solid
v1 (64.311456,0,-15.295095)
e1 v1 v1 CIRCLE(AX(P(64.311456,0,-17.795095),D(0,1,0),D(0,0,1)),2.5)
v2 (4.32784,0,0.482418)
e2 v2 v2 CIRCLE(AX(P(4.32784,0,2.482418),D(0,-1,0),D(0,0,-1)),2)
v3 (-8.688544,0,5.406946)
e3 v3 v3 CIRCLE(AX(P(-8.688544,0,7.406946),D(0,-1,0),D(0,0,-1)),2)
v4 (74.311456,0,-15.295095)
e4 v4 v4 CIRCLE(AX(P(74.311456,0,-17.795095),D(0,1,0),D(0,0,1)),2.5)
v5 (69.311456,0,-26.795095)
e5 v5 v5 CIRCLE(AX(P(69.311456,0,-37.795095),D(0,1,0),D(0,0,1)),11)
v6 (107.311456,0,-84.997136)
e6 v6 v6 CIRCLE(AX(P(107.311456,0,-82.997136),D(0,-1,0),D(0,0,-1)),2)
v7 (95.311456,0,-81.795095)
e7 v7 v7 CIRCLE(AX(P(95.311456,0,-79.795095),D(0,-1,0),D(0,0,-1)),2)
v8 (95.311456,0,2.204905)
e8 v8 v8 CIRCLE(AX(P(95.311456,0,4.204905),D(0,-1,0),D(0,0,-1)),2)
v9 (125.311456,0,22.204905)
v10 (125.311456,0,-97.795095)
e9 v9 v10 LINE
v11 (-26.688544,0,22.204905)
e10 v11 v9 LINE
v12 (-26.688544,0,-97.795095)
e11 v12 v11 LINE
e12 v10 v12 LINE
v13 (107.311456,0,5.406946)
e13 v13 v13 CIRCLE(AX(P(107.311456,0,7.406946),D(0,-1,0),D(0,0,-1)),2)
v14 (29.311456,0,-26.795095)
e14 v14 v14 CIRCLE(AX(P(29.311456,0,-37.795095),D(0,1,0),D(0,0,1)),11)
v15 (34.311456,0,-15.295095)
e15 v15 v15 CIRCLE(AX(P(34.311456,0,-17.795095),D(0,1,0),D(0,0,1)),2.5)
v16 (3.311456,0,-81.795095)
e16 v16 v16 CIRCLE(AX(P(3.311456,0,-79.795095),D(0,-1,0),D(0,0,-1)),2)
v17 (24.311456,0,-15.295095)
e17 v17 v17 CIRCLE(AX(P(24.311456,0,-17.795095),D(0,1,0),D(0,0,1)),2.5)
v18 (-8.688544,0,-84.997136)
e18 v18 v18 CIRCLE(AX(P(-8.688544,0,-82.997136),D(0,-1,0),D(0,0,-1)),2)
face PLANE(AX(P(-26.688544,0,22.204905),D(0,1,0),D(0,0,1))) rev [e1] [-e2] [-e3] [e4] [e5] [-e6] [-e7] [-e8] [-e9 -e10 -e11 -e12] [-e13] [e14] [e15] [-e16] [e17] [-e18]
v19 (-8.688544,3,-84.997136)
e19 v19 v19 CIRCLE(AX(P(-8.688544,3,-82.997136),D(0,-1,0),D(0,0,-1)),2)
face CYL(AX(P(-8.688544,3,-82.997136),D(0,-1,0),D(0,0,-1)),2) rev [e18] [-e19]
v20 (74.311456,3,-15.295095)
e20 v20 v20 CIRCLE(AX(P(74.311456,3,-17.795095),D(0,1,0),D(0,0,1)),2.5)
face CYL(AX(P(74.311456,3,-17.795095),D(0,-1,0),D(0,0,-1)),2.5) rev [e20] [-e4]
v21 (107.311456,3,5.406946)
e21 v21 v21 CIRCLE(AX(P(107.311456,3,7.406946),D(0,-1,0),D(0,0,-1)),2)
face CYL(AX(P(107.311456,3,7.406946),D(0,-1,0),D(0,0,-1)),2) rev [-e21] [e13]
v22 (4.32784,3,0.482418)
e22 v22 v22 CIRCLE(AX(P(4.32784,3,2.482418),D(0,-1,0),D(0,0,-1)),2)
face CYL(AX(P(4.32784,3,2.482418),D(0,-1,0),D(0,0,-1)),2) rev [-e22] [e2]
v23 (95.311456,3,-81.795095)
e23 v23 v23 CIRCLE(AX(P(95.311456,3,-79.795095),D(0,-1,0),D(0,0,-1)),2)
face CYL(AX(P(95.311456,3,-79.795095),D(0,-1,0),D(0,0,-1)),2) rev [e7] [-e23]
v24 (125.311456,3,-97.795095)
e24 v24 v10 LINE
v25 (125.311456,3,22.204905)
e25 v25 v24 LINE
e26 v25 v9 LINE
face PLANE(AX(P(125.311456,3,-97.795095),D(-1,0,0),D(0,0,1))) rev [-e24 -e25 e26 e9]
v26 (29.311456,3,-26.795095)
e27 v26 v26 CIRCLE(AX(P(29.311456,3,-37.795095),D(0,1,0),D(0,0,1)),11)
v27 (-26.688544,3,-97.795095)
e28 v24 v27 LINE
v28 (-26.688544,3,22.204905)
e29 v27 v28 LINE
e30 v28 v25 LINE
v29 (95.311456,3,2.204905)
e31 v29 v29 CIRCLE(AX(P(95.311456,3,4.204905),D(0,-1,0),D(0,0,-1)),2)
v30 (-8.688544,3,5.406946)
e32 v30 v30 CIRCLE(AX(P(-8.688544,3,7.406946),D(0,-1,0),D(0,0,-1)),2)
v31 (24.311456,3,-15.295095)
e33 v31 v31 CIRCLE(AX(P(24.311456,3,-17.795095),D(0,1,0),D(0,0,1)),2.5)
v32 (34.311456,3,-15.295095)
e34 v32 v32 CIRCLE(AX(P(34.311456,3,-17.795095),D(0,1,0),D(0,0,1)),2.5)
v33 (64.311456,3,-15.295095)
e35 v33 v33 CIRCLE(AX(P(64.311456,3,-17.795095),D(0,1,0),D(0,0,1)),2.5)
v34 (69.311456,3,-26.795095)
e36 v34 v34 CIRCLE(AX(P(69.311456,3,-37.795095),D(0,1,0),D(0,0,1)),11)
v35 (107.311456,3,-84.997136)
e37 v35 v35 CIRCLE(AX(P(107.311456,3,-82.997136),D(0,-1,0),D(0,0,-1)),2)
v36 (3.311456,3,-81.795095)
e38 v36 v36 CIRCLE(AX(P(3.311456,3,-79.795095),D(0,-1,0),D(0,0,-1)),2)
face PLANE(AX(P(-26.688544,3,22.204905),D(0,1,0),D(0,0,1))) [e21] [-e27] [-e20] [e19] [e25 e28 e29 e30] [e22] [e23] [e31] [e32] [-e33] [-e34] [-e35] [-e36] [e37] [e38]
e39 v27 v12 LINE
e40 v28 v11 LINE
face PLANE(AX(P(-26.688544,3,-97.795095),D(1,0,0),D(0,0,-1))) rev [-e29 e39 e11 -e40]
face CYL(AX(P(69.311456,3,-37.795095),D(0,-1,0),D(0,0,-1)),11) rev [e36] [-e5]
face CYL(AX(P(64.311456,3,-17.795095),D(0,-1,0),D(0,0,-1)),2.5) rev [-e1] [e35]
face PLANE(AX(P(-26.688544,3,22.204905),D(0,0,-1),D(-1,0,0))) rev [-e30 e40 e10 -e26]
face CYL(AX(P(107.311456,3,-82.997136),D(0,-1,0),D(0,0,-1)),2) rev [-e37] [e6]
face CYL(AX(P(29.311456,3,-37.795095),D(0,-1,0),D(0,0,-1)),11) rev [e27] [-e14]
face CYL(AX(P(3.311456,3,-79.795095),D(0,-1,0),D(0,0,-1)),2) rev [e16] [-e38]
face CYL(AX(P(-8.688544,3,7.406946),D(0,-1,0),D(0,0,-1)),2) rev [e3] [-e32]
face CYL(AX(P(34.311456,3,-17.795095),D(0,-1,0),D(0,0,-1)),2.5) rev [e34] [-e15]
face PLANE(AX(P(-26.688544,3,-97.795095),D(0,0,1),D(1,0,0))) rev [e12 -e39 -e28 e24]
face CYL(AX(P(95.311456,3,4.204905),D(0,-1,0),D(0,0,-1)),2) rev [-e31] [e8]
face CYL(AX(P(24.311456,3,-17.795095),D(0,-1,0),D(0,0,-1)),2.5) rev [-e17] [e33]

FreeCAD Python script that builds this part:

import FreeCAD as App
import Part
import Sketcher
from FreeCAD import Vector

doc = App.newDocument("Part")
body = doc.addObject("PartDesign::Body", "Body")

# Sketch on XZ plane
sketch1 = doc.addObject("Sketcher::SketchObject", "Sketch")
body.addObject(sketch1)
sketch1.AttachmentSupport = (doc.XZ_Plane, [""])
sketch1.MapMode = "FlatFace"
sketch1.addGeometry([
    Part.LineSegment(Vector(-26.7, -97.8, 0), Vector(-26.7, 22.2, 0)),  # 0
    Part.LineSegment(Vector(-26.7, 22.2, 0), Vector(125.3, 22.2, 0)),  # 1
    Part.LineSegment(Vector(125.3, 22.2, 0), Vector(125.3, -97.8, 0)),  # 2
    Part.LineSegment(Vector(125.3, -97.8, 0), Vector(-26.7, -97.8, 0)),  # 3
    Part.Circle(Vector(24.3, -17.8, 0), Vector(0, 0, 1), 2.5),  # 4
    Part.Circle(Vector(34.3, -17.8, 0), Vector(0, 0, 1), 2.5),  # 5
    Part.Circle(Vector(64.3, -17.8, 0), Vector(0, 0, 1), 2.5),  # 6
    Part.Circle(Vector(74.3, -17.8, 0), Vector(0, 0, 1), 2.5),  # 7
    Part.Circle(Vector(29.3, -37.8, 0), Vector(0, 0, 1), 11),  # 8
    Part.Circle(Vector(69.3, -37.8, 0), Vector(0, 0, 1), 11),  # 9
], False)
sketch1.addConstraint([
    Sketcher.Constraint("Coincident", 0, 2, 1, 1),
    Sketcher.Constraint("Coincident", 1, 2, 2, 1),
    Sketcher.Constraint("Coincident", 2, 2, 3, 1),
    Sketcher.Constraint("Coincident", 3, 2, 0, 1),
    Sketcher.Constraint("Vertical", 0),
    Sketcher.Constraint("Horizontal", 1),
    Sketcher.Constraint("Vertical", 2),
    Sketcher.Constraint("Horizontal", 3),
    Sketcher.Constraint("Equal", 4, 5),
    Sketcher.Constraint("Equal", 5, 6),
    Sketcher.Constraint("Equal", 6, 7),
    Sketcher.Constraint("Equal", 8, 9),
    Sketcher.Constraint("Horizontal", 4, 3, 5, 3),
    Sketcher.Constraint("Horizontal", 5, 3, 6, 3),
    Sketcher.Constraint("Horizontal", 6, 3, 7, 3),
    Sketcher.Constraint("Horizontal", 8, 3, 9, 3),
    Sketcher.Constraint("Diameter", 4, 5.0),
    Sketcher.Constraint("Diameter", 8, 22.0),
    Sketcher.Constraint("DistanceX", 1, 1, 1, 2, 152.0),
    Sketcher.Constraint("DistanceY", 0, 1, 0, 2, 120.0),
    Sketcher.Constraint("DistanceX", 4, 3, 5, 3, 10.0),
    Sketcher.Constraint("DistanceX", 5, 3, 6, 3, 30.0),
    Sketcher.Constraint("DistanceX", 6, 3, 7, 3, 10.0),
    Sketcher.Constraint("DistanceX", 4, 3, 8, 3, 5.0),
    Sketcher.Constraint("DistanceY", 8, 3, 4, 3, 20.0),
    Sketcher.Constraint("DistanceX", 6, 3, 9, 3, 5.0),
    Sketcher.Constraint("DistanceX", 0, 2, 4, 3, 51.0),
    Sketcher.Constraint("DistanceY", 4, 3, 0, 2, 40.0),
    Sketcher.Constraint("DistanceX", -1, 1, 4, 3, 24.311456),
    Sketcher.Constraint("DistanceY", 4, 3, -1, 1, 17.795095),
])
pad1 = doc.addObject("PartDesign::Pad", "Pad")
body.addObject(pad1)
pad1.Profile = sketch1
pad1.Length = 3
pad1.Reversed = True

# Sketch on XZ plane
sketch2 = doc.addObject("Sketcher::SketchObject", "Sketch001")
body.addObject(sketch2)
sketch2.AttachmentSupport = (doc.XZ_Plane, [""])
sketch2.MapMode = "FlatFace"
sketch2.addGeometry([
    Part.Circle(Vector(4.3, 2.5, 0), Vector(0, 0, 1), 2),  # 0
    Part.Circle(Vector(95.3, -79.8, 0), Vector(0, 0, 1), 2),  # 1
    Part.Circle(Vector(3.3, -79.8, 0), Vector(0, 0, 1), 2),  # 2
    Part.Circle(Vector(-8.7, -83, 0), Vector(0, 0, 1), 2),  # 3
    Part.Circle(Vector(95.3, 4.2, 0), Vector(0, 0, 1), 2),  # 4
    Part.Circle(Vector(107.3, -83, 0), Vector(0, 0, 1), 2),  # 5
    Part.Circle(Vector(-8.7, 7.4, 0), Vector(0, 0, 1), 2),  # 6
    Part.Circle(Vector(107.3, 7.4, 0), Vector(0, 0, 1), 2),  # 7
], False)
sketch2.addConstraint([
    Sketcher.Constraint("Equal", 0, 1),
    Sketcher.Constraint("Equal", 1, 2),
    Sketcher.Constraint("Equal", 2, 3),
    Sketcher.Constraint("Equal", 3, 4),
    Sketcher.Constraint("Equal", 4, 5),
    Sketcher.Constraint("Equal", 5, 6),
    Sketcher.Constraint("Equal", 6, 7),
    Sketcher.Constraint("Horizontal", 1, 3, 2, 3),
    Sketcher.Constraint("Horizontal", 3, 3, 5, 3),
    Sketcher.Constraint("Horizontal", 6, 3, 7, 3),
    Sketcher.Constraint("Vertical", 1, 3, 4, 3),
    Sketcher.Constraint("Vertical", 3, 3, 6, 3),
    Sketcher.Constraint("Vertical", 5, 3, 7, 3),
    Sketcher.Constraint("Diameter", 0, 4.0),
    Sketcher.Constraint("DistanceX", 2, 3, 1, 3, 92.0),
    Sketcher.Constraint("DistanceX", 3, 3, 2, 3, 12.0),
    Sketcher.Constraint("DistanceY", 1, 3, 4, 3, 84.0),
    Sketcher.Constraint("DistanceX", 1, 3, 5, 3, 12.0),
    Sketcher.Constraint("DistanceX", -1, 1, 0, 3, 4.32784),
    Sketcher.Constraint("DistanceY", 3, 3, 2, 3, 3.202041),
    Sketcher.Constraint("DistanceY", 0, 3, 6, 3, 4.924529),
    Sketcher.Constraint("DistanceY", 2, 3, 6, 3, 87.202041),
    Sketcher.Constraint("DistanceY", -1, 1, 0, 3, 2.482418),
    Sketcher.Constraint("DistanceX", -1, 1, 1, 3, 95.311456),
])
pocket1 = doc.addObject("PartDesign::Pocket", "Pocket")
body.addObject(pocket1)
pocket1.Profile = sketch2
pocket1.Type = "ThroughAll"

doc.recompute()
